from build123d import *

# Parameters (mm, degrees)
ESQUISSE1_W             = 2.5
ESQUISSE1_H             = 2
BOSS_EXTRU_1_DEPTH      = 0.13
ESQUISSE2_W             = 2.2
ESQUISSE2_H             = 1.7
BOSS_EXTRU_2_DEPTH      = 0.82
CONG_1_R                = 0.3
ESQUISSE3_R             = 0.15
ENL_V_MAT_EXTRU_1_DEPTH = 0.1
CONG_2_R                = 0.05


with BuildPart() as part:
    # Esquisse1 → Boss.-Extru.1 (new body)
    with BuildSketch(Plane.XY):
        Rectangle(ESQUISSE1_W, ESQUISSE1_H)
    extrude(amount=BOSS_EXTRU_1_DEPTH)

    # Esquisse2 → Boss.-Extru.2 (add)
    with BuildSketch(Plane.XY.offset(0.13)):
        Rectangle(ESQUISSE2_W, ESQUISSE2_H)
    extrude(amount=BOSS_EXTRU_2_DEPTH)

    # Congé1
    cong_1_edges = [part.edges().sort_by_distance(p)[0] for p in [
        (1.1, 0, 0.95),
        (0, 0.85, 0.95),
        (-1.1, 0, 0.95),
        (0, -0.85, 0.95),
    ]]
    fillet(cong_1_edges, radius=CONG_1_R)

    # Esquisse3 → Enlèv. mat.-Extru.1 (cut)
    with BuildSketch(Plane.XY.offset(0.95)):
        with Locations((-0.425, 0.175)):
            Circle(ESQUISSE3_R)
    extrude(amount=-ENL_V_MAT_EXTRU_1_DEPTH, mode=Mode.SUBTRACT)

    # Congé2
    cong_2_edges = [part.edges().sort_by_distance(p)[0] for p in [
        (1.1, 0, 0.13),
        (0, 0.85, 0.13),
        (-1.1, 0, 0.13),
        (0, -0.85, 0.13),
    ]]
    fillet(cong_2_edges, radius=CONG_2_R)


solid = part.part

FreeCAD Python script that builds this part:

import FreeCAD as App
import Part
import Sketcher
from FreeCAD import Vector
Q = App.Units.Quantity


def edges_at(feature, points):
    """Names of the edges that pass closest to the given points."""
    edges = feature.Shape.Edges
    near = lambda p: min(range(len(edges)), key=lambda i: edges[i].distToShape(Part.Vertex(*p))[0])
    return sorted({f"Edge{near(p) + 1}" for p in points})

doc = App.newDocument("Part")
body = doc.addObject("PartDesign::Body", "Body")

sketch1 = body.newObject("Sketcher::SketchObject", "Sketch")
sketch1.AttachmentSupport = (doc.getObject("XY_Plane"), [""])
sketch1.MapMode = "FlatFace"
sketch1.addGeometry([
    Part.LineSegment(Vector(-1.2, 1, 0), Vector(-1.2, -1, 0)),
    Part.LineSegment(Vector(-1.2, -1, 0), Vector(1.2, -1, 0)),
    Part.LineSegment(Vector(1.2, -1, 0), Vector(1.2, 1, 0)),
    Part.LineSegment(Vector(1.2, 1, 0), Vector(-1.2, 1, 0)),
], False)
sketch1.addConstraint([
    Sketcher.Constraint("Coincident", 0, 2, 1, 1),
    Sketcher.Constraint("Coincident", 1, 2, 2, 1),
    Sketcher.Constraint("Coincident", 2, 2, 3, 1),
    Sketcher.Constraint("Coincident", 3, 2, 0, 1),
    Sketcher.Constraint("Vertical", 0),
    Sketcher.Constraint("Horizontal", 1),
    Sketcher.Constraint("Vertical", 2),
    Sketcher.Constraint("Horizontal", 3),
    Sketcher.Constraint("Symmetric", 0, 2, 2, 2, -1, 1),
    Sketcher.Constraint("DistanceY", 0, 2, 0, 1, Q("2 mm")),
    Sketcher.Constraint("DistanceX", 1, 1, 1, 2, Q("2.5 mm")),
])
pad1 = body.newObject("PartDesign::Pad", "Pad")
pad1.Profile = sketch1
pad1.Length = 0.13

sketch2 = body.newObject("Sketcher::SketchObject", "Sketch001")
sketch2.AttachmentSupport = (doc.getObject("XY_Plane"), [""])
sketch2.MapMode = "FlatFace"
sketch2.AttachmentOffset = App.Placement(Vector(0, 0, 0.13), App.Rotation())
sketch2.addGeometry([
    Part.LineSegment(Vector(-1.1, 0.8, 0), Vector(-1.1, -0.8, 0)),
    Part.LineSegment(Vector(-1.1, -0.8, 0), Vector(1.1, -0.8, 0)),
    Part.LineSegment(Vector(1.1, -0.8, 0), Vector(1.1, 0.8, 0)),
    Part.LineSegment(Vector(1.1, 0.8, 0), Vector(-1.1, 0.8, 0)),
], False)
sketch2.addConstraint([
    Sketcher.Constraint("Coincident", 0, 2, 1, 1),
    Sketcher.Constraint("Coincident", 1, 2, 2, 1),
    Sketcher.Constraint("Coincident", 2, 2, 3, 1),
    Sketcher.Constraint("Coincident", 3, 2, 0, 1),
    Sketcher.Constraint("Vertical", 0),
    Sketcher.Constraint("Horizontal", 1),
    Sketcher.Constraint("Vertical", 2),
    Sketcher.Constraint("Horizontal", 3),
    Sketcher.Constraint("Symmetric", 0, 2, 2, 2, -1, 1),
    Sketcher.Constraint("DistanceX", 1, 1, 1, 2, Q("2.2 mm")),
    Sketcher.Constraint("DistanceY", 0, 2, 0, 1, Q("1.7 mm")),
])
pad2 = body.newObject("PartDesign::Pad", "Pad001")
pad2.Profile = sketch2
pad2.Length = 0.82
doc.recompute()

fillet = body.newObject("PartDesign::Fillet", "Fillet")
fillet.Base = (pad2, edges_at(pad2, [
    (1.1, 0, 0.95),
    (0, 0.85, 0.95),
    (-1.1, 0, 0.95),
    (0, -0.85, 0.95),
]))
fillet.Radius = 0.3

sketch3 = body.newObject("Sketcher::SketchObject", "Sketch002")
sketch3.AttachmentSupport = (doc.getObject("XY_Plane"), [""])
sketch3.MapMode = "FlatFace"
sketch3.AttachmentOffset = App.Placement(Vector(0, 0, 0.95), App.Rotation())
sketch3.addGeometry(Part.Circle(Vector(-0.42, 0.17, 0), Vector(0, 0, 1), 0.15), False)
sketch3.addConstraint([
    Sketcher.Constraint("Diameter", 0, Q("0.3 mm")),
    Sketcher.Constraint("DistanceX", 0, 3, -1, 1, Q("0.425 mm")),
    Sketcher.Constraint("DistanceY", -1, 1, 0, 3, Q("0.175 mm")),
])
pocket1 = body.newObject("PartDesign::Pocket", "Pocket")
pocket1.Profile = sketch3
pocket1.Length = 0.1
doc.recompute()

fillet2 = body.newObject("PartDesign::Fillet", "Fillet001")
fillet2.Base = (pocket1, edges_at(pocket1, [
    (1.1, 0, 0.13),
    (0, 0.85, 0.13),
    (-1.1, 0, 0.13),
    (0, -0.85, 0.13),
]))
fillet2.Radius = 0.05

doc.recompute()
